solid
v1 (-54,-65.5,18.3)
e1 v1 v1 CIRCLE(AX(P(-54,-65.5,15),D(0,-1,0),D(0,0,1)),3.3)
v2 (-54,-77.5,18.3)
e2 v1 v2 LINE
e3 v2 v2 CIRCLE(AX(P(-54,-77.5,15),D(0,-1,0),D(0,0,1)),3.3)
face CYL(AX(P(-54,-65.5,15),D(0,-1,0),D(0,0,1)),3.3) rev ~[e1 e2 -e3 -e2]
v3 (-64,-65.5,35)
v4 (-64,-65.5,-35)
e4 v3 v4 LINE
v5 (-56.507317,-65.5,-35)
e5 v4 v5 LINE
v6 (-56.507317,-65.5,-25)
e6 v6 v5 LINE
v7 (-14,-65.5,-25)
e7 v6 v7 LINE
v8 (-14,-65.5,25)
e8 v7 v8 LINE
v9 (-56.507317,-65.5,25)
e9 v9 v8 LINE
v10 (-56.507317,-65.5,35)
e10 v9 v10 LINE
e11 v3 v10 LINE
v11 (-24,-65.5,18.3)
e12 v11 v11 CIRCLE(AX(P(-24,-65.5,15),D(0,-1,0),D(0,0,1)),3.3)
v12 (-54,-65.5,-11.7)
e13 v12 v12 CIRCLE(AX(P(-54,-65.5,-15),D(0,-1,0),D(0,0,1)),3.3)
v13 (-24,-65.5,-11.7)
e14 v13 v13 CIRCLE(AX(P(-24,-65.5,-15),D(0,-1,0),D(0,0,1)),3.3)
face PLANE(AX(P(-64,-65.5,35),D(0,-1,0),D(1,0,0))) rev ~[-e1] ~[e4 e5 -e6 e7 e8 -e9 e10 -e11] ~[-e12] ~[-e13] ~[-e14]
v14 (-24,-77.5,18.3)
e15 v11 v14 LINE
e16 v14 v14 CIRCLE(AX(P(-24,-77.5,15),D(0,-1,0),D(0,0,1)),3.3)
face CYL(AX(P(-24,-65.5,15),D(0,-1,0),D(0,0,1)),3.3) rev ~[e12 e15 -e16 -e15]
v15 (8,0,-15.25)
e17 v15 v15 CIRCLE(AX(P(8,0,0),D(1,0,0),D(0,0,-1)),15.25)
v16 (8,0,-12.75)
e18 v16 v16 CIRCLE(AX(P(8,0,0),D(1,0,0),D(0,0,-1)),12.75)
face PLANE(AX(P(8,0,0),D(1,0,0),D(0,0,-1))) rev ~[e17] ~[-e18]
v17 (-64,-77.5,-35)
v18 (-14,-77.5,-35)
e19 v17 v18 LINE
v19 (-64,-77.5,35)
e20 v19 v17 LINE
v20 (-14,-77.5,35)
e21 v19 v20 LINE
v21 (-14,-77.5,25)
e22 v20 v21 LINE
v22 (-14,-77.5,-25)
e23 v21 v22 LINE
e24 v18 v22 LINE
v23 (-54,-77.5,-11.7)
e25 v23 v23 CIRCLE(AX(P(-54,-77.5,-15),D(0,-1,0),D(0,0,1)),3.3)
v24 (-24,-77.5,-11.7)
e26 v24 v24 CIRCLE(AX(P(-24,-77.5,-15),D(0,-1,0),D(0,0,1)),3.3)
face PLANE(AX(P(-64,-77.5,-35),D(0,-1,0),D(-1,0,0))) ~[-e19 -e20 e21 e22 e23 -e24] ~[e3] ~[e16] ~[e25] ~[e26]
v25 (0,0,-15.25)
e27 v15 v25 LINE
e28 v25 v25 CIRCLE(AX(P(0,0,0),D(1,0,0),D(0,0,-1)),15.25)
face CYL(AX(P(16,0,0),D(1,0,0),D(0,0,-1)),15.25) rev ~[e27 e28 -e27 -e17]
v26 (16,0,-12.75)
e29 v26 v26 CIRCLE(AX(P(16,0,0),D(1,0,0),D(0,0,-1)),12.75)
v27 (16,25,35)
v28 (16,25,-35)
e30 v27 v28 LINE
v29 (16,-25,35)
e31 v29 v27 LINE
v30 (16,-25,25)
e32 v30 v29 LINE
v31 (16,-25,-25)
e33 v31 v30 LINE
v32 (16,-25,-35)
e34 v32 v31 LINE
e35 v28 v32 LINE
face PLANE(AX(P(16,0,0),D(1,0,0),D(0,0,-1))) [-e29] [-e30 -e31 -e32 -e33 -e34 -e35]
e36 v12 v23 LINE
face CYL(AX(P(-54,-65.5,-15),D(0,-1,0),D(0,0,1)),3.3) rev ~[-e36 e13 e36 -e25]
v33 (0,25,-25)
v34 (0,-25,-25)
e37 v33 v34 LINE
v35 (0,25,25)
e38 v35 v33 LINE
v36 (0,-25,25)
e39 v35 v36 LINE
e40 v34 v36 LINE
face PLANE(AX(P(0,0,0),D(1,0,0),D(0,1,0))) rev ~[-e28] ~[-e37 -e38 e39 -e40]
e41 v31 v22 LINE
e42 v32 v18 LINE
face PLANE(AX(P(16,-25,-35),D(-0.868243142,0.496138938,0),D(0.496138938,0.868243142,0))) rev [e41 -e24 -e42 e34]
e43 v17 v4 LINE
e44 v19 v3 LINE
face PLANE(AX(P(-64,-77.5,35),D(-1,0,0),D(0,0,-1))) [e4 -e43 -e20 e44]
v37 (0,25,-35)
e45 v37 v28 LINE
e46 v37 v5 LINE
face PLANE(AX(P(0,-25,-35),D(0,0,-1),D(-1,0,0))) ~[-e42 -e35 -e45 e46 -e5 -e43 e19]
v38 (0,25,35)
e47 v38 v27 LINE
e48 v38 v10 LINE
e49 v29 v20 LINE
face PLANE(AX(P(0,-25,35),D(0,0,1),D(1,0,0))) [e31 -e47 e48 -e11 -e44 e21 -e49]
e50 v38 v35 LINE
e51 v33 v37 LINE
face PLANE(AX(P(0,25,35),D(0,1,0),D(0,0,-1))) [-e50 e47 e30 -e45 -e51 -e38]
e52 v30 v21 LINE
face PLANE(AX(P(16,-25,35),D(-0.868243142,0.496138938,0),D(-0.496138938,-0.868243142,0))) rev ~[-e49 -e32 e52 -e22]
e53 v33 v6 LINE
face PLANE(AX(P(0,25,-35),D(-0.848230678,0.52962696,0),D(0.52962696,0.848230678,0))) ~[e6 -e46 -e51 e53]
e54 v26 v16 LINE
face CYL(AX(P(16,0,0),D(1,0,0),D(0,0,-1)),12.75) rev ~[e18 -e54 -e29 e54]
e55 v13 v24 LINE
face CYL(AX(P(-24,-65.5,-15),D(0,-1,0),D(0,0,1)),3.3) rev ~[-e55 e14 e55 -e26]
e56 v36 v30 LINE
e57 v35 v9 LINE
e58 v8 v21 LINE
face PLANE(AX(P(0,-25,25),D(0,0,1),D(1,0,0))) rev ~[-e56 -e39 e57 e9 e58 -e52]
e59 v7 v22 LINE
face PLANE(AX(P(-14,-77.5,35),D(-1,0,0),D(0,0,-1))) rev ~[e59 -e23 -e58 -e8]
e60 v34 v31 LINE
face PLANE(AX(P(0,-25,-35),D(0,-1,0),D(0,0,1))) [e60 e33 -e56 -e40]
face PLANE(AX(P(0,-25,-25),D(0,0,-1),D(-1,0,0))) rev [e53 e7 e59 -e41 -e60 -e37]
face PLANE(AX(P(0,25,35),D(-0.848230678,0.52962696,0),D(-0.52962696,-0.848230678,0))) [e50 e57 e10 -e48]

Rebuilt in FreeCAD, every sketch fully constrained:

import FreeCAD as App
import Part
import Sketcher

doc = App.newDocument("Part")
body = doc.addObject("PartDesign::Body", "Body")

# Sketch on YZ plane
sketch1 = doc.addObject("Sketcher::SketchObject", "Sketch")
body.addObject(sketch1)
sketch1.AttachmentSupport = (doc.YZ_Plane, [""])
sketch1.MapMode = "FlatFace"
sketch1.addGeometry([
    Part.LineSegment(App.Vector(25, 35, 0), App.Vector(-25, 35, 0)),
    Part.LineSegment(App.Vector(-25, 35, 0), App.Vector(-25, -35, 0)),
    Part.LineSegment(App.Vector(-25, -35, 0), App.Vector(25, -35, 0)),
    Part.LineSegment(App.Vector(25, -35, 0), App.Vector(25, 35, 0)),
], False)
sketch1.addConstraint([
    Sketcher.Constraint("Coincident", 0, 2, 1, 1),
    Sketcher.Constraint("Coincident", 1, 2, 2, 1),
    Sketcher.Constraint("Coincident", 2, 2, 3, 1),
    Sketcher.Constraint("Coincident", 3, 2, 0, 1),
    Sketcher.Constraint("Horizontal", 0),
    Sketcher.Constraint("Vertical", 1),
    Sketcher.Constraint("Horizontal", 2),
    Sketcher.Constraint("Vertical", 3),
    Sketcher.Constraint("Symmetric", 0, 2, 2, 2, -1, 1),
    Sketcher.Constraint("DistanceX", 0, 2, 0, 1, 50.0),
    Sketcher.Constraint("DistanceY", 1, 2, 1, 1, 70.0),
])
pad1 = doc.addObject("PartDesign::Pad", "Pad")
body.addObject(pad1)
pad1.Profile = sketch1
pad1.Length = 16

# Sketch on YZ plane
sketch2 = doc.addObject("Sketcher::SketchObject", "Sketch001")
body.addObject(sketch2)
sketch2.AttachmentSupport = (doc.YZ_Plane, [""])
sketch2.MapMode = "FlatFace"
sketch2.AttachmentOffset = App.Placement(App.Vector(0, 0, 16), App.Rotation())
sketch2.addGeometry(Part.Circle(App.Vector(0, 0, 0), App.Vector(0, 0, 1), 15), False)
sketch2.addConstraint([
    Sketcher.Constraint("Coincident", 0, 3, -1, 1),
    Sketcher.Constraint("Diameter", 0, 30.5),
])
pocket1 = doc.addObject("PartDesign::Pocket", "Pocket")
body.addObject(pocket1)
pocket1.Profile = sketch2
pocket1.Type = "ThroughAll"

# Sketch on YZ plane
sketch3 = doc.addObject("Sketcher::SketchObject", "Sketch002")
body.addObject(sketch3)
sketch3.AttachmentSupport = (doc.YZ_Plane, [""])
sketch3.MapMode = "FlatFace"
sketch3.AttachmentOffset = App.Placement(App.Vector(0, 0, 16), App.Rotation())
sketch3.addGeometry([
    Part.Circle(App.Vector(0, 0, 0), App.Vector(0, 0, 1), 15),
    Part.Circle(App.Vector(0, 0, 0), App.Vector(0, 0, 1), 13),
], False)
sketch3.addConstraint([
    Sketcher.Constraint("Coincident", 0, 3, -1, 1),
    Sketcher.Constraint("Coincident", 1, 3, -1, 1),
    Sketcher.Constraint("Diameter", 1, 25.5),
    Sketcher.Constraint("Diameter", 0, 30.5),
])
pad2 = doc.addObject("PartDesign::Pad", "Pad001")
body.addObject(pad2)
pad2.Profile = sketch3
pad2.Length = 8
pad2.Reversed = True

# Sketch on XY plane
sketch4 = doc.addObject("Sketcher::SketchObject", "Sketch003")
body.addObject(sketch4)
sketch4.AttachmentSupport = (doc.XY_Plane, [""])
sketch4.MapMode = "FlatFace"
sketch4.AttachmentOffset = App.Placement(App.Vector(0, 0, 35), App.Rotation())
sketch4.addGeometry([
    Part.LineSegment(App.Vector(0, -25, 0), App.Vector(0, 25, 0)),  # 0
    Part.LineSegment(App.Vector(0, 25, 0), App.Vector(-64, -78, 0)),  # 1
    Part.LineSegment(App.Vector(-64, -78, 0), App.Vector(-14, -78, 0)),  # 2
    Part.LineSegment(App.Vector(-14, -78, 0), App.Vector(16, -25, 0)),  # 3
    Part.LineSegment(App.Vector(16, -25, 0), App.Vector(0, -25, 0)),  # 4
], False)
sketch4.addConstraint([
    Sketcher.Constraint("Coincident", 0, 2, 1, 1),
    Sketcher.Constraint("Coincident", 1, 2, 2, 1),
    Sketcher.Constraint("Coincident", 2, 2, 3, 1),
    Sketcher.Constraint("Coincident", 3, 2, 4, 1),
    Sketcher.Constraint("Coincident", 4, 2, 0, 1),
    Sketcher.Constraint("Vertical", 0),
    Sketcher.Constraint("Horizontal", 2),
    Sketcher.Constraint("Horizontal", 4),
    Sketcher.Constraint("Symmetric", 0, 2, 4, 2, -1, 1),
    Sketcher.Constraint("Equal", 2, 0),
    Sketcher.Constraint("DistanceX", 2, 1, 2, 2, 50.0),
    Sketcher.Constraint("DistanceX", 1, 2, 3, 2, 80.0),
    Sketcher.Constraint("DistanceY", 1, 2, -1, 1, 77.5),
    Sketcher.Constraint("DistanceX", 4, 2, 4, 1, 16.0),
])
pad3 = doc.addObject("PartDesign::Pad", "Pad002")
body.addObject(pad3)
pad3.Profile = sketch4
pad3.Length = 10
pad3.Reversed = True
doc.recompute()

mirrored = doc.addObject("PartDesign::Mirrored", "Mirrored")
body.addObject(mirrored)
mirrored.Originals = [pad3]
mirrored.MirrorPlane = (doc.XY_Plane, [""])
body.Tip = mirrored

# Sketch on XZ plane
sketch5 = doc.addObject("Sketcher::SketchObject", "Sketch004")
body.addObject(sketch5)
sketch5.AttachmentSupport = (doc.XZ_Plane, [""])
sketch5.MapMode = "FlatFace"
sketch5.AttachmentOffset = App.Placement(App.Vector(0, 0, 77.5), App.Rotation())
sketch5.addGeometry([
    Part.LineSegment(App.Vector(-14, 35, 0), App.Vector(-64, 35, 0)),
    Part.LineSegment(App.Vector(-64, 35, 0), App.Vector(-64, -35, 0)),
    Part.LineSegment(App.Vector(-64, -35, 0), App.Vector(-14, -35, 0)),
    Part.LineSegment(App.Vector(-14, -35, 0), App.Vector(-14, 35, 0)),
], False)
sketch5.addConstraint([
    Sketcher.Constraint("Coincident", 0, 2, 1, 1),
    Sketcher.Constraint("Coincident", 1, 2, 2, 1),
    Sketcher.Constraint("Coincident", 2, 2, 3, 1),
    Sketcher.Constraint("Coincident", 3, 2, 0, 1),
    Sketcher.Constraint("Horizontal", 0),
    Sketcher.Constraint("Vertical", 1),
    Sketcher.Constraint("Horizontal", 2),
    Sketcher.Constraint("Vertical", 3),
    Sketcher.Constraint("DistanceX", 0, 2, 0, 1, 50.0),
    Sketcher.Constraint("DistanceY", 1, 2, 1, 1, 70.0),
    Sketcher.Constraint("DistanceX", 0, 2, -1, 1, 64.0),
    Sketcher.Constraint("DistanceY", -1, 1, 0, 2, 35.0),
])
pad4 = doc.addObject("PartDesign::Pad", "Pad003")
body.addObject(pad4)
pad4.Profile = sketch5
pad4.Length = 12
pad4.Reversed = True

# Sketch on XZ plane
sketch6 = doc.addObject("Sketcher::SketchObject", "Sketch005")
body.addObject(sketch6)
sketch6.AttachmentSupport = (doc.XZ_Plane, [""])
sketch6.MapMode = "FlatFace"
sketch6.AttachmentOffset = App.Placement(App.Vector(0, 0, 65.5), App.Rotation())
sketch6.addGeometry([
    Part.Circle(App.Vector(-24, -15, 0), App.Vector(0, 0, 1), 3.3),
    Part.Circle(App.Vector(-54, -15, 0), App.Vector(0, 0, 1), 3.3),
    Part.Circle(App.Vector(-54, 15, 0), App.Vector(0, 0, 1), 3.3),
    Part.Circle(App.Vector(-24, 15, 0), App.Vector(0, 0, 1), 3.3),
], False)
sketch6.addConstraint([
    Sketcher.Constraint("Equal", 0, 1),
    Sketcher.Constraint("Equal", 1, 2),
    Sketcher.Constraint("Equal", 2, 3),
    Sketcher.Constraint("Symmetric", 1, 3, 2, 3, -1),
    Sketcher.Constraint("Symmetric", 0, 3, 3, 3, -1),
    Sketcher.Constraint("Horizontal", 0, 3, 1, 3),
    Sketcher.Constraint("Diameter", 0, 6.6),
    Sketcher.Constraint("DistanceX", 0, 3, -1, 1, 24.0),
    Sketcher.Constraint("DistanceY", 0, 3, -1, 1, 15.0),
    Sketcher.Constraint("DistanceX", 1, 3, -1, 1, 54.0),
])
doc.recompute()
hole = doc.addObject("PartDesign::Hole", "Hole")
body.addObject(hole)
hole.Profile = sketch6
hole.ThreadType = "None"
hole.Diameter = 6.6
hole.DepthType = "ThroughAll"
hole.Reversed = True

doc.recompute()
